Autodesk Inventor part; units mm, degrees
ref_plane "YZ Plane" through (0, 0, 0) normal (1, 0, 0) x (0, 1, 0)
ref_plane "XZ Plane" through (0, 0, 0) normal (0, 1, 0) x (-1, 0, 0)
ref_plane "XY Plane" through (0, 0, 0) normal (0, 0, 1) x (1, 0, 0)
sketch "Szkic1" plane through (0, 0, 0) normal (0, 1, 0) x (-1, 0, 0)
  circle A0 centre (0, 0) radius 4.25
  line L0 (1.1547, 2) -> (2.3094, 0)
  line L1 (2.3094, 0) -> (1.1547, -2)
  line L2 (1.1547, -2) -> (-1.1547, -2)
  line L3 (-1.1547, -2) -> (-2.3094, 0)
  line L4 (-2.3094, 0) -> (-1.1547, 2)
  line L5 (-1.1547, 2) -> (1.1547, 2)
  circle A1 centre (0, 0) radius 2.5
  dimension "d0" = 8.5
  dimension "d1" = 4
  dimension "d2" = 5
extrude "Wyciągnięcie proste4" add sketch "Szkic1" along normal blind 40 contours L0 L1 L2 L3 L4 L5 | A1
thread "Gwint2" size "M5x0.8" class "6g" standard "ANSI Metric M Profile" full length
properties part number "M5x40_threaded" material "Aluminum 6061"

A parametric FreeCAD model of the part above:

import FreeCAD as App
import Part
import Sketcher

V = App.Vector
Q = App.Units.Quantity

doc = App.newDocument("Part")
body = doc.addObject("PartDesign::Body", "Body")

sketch1 = body.newObject("Sketcher::SketchObject", "Sketch")
sketch1.AttachmentSupport = (doc.getObject("XZ_Plane"), [""])
sketch1.MapMode = "FlatFace"
sketch1.addGeometry(Part.Circle(V(0, 0, 0), V(0, 0, 1), 2.5), False)
sketch1.addConstraint(Sketcher.Constraint("Coincident", 0, 3, -1, 1))
sketch1.addConstraint(Sketcher.Constraint("Diameter", 0, Q("5 mm")))
pad1 = body.newObject("PartDesign::Pad", "Pad")
pad1.Profile = sketch1
pad1.Length = 40
pad1.Reversed = True

doc.recompute()
